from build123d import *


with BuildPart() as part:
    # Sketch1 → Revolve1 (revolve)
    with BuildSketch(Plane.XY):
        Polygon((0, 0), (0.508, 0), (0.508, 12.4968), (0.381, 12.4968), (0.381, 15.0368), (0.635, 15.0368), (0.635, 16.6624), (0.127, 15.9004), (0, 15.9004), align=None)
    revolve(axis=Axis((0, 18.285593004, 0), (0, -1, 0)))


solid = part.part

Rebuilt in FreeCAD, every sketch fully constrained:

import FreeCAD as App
import Part
import Sketcher

V = App.Vector
Q = App.Units.Quantity


def add_polygon(sketch, points):
    """Adds a closed chain of lines whose ends are joined by coincident constraints."""
    first, n = sketch.GeometryCount, len(points)
    for a, b in zip(points, points[1:] + points[:1]):
        sketch.addGeometry(Part.LineSegment(App.Vector(*a, 0), App.Vector(*b, 0)), False)
    for i in range(n):
        sketch.addConstraint(Sketcher.Constraint("Coincident", first + i, 2, first + (i + 1) % n, 1))

doc = App.newDocument("Part")
body = doc.addObject("PartDesign::Body", "Body")

sketch1 = body.newObject("Sketcher::SketchObject", "Sketch")
sketch1.AttachmentSupport = (doc.getObject("XY_Plane"), [""])
sketch1.MapMode = "FlatFace"
add_polygon(sketch1, [(0, 0), (0.51, 0), (0.51, 12.5), (0.38, 12.5), (0.38, 15.04), (0.64, 15.04), (0.64, 16.66), (0.13, 15.9), (0, 15.9)])
sketch1.addConstraint([
    Sketcher.Constraint("Horizontal", 0),
    Sketcher.Constraint("Vertical", 1),
    Sketcher.Constraint("Horizontal", 2),
    Sketcher.Constraint("Vertical", 3),
    Sketcher.Constraint("Horizontal", 4),
    Sketcher.Constraint("Vertical", 5),
    Sketcher.Constraint("Horizontal", 7),
    Sketcher.Constraint("Vertical", 8),
    Sketcher.Constraint("Coincident", 8, 2, -1, 1),
    Sketcher.Constraint("Equal", 2, 7),
    Sketcher.Constraint("DistanceY", 3, 1, 3, 2, Q("0.1 in")),
    Sketcher.Constraint("DistanceX", 0, 1, 0, 2, Q("0.02 in")),
    Sketcher.Constraint("DistanceX", 4, 1, 4, 2, Q("0.01 in")),
    Sketcher.Constraint("DistanceX", 2, 2, 2, 1, Q("0.005 in")),
    Sketcher.Constraint("DistanceY", 1, 1, 1, 2, Q("0.492 in")),
    Sketcher.Constraint("DistanceY", 5, 1, 5, 2, Q("0.064 in")),
    Sketcher.Constraint("DistanceY", 8, 2, 8, 1, Q("0.626 in")),
])
revolution = body.newObject("PartDesign::Revolution", "Revolution")
revolution.Profile = sketch1
revolution.ReferenceAxis = (sketch1, ["V_Axis"])
revolution.Angle = 360

doc.recompute()
